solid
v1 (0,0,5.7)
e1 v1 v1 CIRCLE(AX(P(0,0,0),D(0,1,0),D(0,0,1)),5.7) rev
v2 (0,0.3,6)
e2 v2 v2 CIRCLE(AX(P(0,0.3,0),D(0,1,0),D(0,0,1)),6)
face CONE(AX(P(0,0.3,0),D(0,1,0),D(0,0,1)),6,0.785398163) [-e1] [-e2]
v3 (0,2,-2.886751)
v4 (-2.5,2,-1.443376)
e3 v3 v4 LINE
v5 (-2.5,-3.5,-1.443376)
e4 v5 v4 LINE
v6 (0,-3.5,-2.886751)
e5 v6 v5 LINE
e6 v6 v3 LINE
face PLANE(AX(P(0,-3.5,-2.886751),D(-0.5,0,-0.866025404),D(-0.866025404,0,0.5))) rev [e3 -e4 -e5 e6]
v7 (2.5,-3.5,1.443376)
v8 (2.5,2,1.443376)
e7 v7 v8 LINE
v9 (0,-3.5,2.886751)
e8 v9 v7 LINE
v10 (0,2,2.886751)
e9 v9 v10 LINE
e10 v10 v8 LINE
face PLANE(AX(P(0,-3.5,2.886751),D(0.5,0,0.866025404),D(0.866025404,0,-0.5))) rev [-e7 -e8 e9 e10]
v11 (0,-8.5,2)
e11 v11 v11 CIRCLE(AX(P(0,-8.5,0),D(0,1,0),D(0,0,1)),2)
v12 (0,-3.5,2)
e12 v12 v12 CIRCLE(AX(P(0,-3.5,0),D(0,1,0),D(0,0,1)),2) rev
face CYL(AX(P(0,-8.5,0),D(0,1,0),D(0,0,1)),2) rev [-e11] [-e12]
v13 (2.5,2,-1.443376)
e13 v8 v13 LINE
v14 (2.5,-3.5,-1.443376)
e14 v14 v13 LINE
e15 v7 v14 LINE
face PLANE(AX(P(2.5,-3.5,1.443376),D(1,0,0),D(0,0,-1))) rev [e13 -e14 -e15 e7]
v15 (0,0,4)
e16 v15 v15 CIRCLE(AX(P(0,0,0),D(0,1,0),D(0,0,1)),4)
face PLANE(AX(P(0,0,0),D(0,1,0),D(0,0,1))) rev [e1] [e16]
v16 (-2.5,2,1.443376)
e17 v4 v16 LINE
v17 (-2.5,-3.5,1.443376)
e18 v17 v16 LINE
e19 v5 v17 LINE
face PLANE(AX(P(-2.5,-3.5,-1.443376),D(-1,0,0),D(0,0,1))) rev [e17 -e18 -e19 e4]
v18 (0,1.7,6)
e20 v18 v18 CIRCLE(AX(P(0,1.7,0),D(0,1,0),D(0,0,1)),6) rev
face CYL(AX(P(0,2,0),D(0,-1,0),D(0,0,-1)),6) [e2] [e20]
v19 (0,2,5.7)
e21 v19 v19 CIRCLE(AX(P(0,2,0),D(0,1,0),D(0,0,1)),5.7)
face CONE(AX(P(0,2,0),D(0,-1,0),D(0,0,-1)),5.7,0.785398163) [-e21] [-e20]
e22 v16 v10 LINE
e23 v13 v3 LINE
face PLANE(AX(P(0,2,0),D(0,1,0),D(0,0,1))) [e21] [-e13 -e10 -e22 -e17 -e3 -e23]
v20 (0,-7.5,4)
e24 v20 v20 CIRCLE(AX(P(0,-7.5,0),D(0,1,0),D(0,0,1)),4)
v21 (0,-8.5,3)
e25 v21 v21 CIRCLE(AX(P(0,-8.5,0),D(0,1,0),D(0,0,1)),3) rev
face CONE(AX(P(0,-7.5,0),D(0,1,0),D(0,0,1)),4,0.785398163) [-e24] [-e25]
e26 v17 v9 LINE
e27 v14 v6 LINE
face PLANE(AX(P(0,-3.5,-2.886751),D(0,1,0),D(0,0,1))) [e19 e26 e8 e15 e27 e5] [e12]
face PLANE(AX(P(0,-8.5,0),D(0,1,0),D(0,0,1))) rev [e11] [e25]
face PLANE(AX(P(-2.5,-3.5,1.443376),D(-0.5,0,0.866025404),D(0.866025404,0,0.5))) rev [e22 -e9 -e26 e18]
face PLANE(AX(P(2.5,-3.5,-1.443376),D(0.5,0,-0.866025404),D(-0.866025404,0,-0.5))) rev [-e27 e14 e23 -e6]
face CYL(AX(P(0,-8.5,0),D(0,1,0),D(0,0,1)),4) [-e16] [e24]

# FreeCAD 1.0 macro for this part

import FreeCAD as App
import Part
import Sketcher
from FreeCAD import Vector
Q = App.Units.Quantity


def edges_at(feature, points):
    """Names of the edges that pass closest to the given points."""
    edges = feature.Shape.Edges
    near = lambda p: min(range(len(edges)), key=lambda i: edges[i].distToShape(Part.Vertex(*p))[0])
    return sorted({f"Edge{near(p) + 1}" for p in points})

doc = App.newDocument("Part")
body = doc.addObject("PartDesign::Body", "Body")

# Sketch on XZ plane
sketch1 = doc.addObject("Sketcher::SketchObject", "Sketch")
body.addObject(sketch1)
sketch1.AttachmentSupport = (doc.XZ_Plane, [""])
sketch1.MapMode = "FlatFace"
sketch1.addGeometry(Part.Circle(Vector(0, 0, 0), Vector(0, 0, 1), 4), False)
sketch1.addConstraint([
    Sketcher.Constraint("Coincident", 0, 3, -1, 1),
    Sketcher.Constraint("Diameter", 0, 8.0),
])
pad1 = doc.addObject("PartDesign::Pad", "Pad")
body.addObject(pad1)
pad1.Profile = sketch1
pad1.Length = 8.5

# Sketch on XZ plane
sketch2 = doc.addObject("Sketcher::SketchObject", "Sketch001")
body.addObject(sketch2)
sketch2.AttachmentSupport = (doc.XZ_Plane, [""])
sketch2.MapMode = "FlatFace"
sketch2.addGeometry(Part.Circle(Vector(0, 0, 0), Vector(0, 0, 1), 6), False)
sketch2.addConstraint([
    Sketcher.Constraint("Coincident", 0, 3, -1, 1),
    Sketcher.Constraint("Diameter", 0, 12.0),
])
pad2 = doc.addObject("PartDesign::Pad", "Pad001")
body.addObject(pad2)
pad2.Profile = sketch2
pad2.Length = 2
pad2.Reversed = True

# Sketch on XZ plane
sketch3 = doc.addObject("Sketcher::SketchObject", "Sketch002")
body.addObject(sketch3)
sketch3.AttachmentSupport = (doc.XZ_Plane, [""])
sketch3.MapMode = "FlatFace"
sketch3.AttachmentOffset = App.Placement(Vector(0, 0, -2), App.Rotation())
sketch3.addGeometry(Part.Circle(Vector(0, 0, 0), Vector(0, 0, 1), 2), False)
sketch3.addConstraint([
    Sketcher.Constraint("Coincident", 0, 3, -1, 1),
    Sketcher.Constraint("Diameter", 0, 4.0),
])
pocket1 = doc.addObject("PartDesign::Pocket", "Pocket")
body.addObject(pocket1)
pocket1.Profile = sketch3
pocket1.Type = "ThroughAll"
pocket1.Reversed = True

# Sketch on XZ plane
sketch4 = doc.addObject("Sketcher::SketchObject", "Sketch003")
body.addObject(sketch4)
sketch4.AttachmentSupport = (doc.XZ_Plane, [""])
sketch4.MapMode = "FlatFace"
sketch4.AttachmentOffset = App.Placement(Vector(0, 0, -2), App.Rotation())
sketch4.addGeometry([
    Part.LineSegment(Vector(0, -2.886751, 0), Vector(-2.5, -1.443376, 0)),  # 0
    Part.LineSegment(Vector(-2.5, -1.443376, 0), Vector(-2.5, 1.443376, 0)),  # 1
    Part.LineSegment(Vector(-2.5, 1.443376, 0), Vector(0, 2.886751, 0)),  # 2
    Part.LineSegment(Vector(0, 2.886751, 0), Vector(2.5, 1.443376, 0)),  # 3
    Part.LineSegment(Vector(2.5, 1.443376, 0), Vector(2.5, -1.443376, 0)),  # 4
    Part.LineSegment(Vector(2.5, -1.443376, 0), Vector(0, -2.886751, 0)),  # 5
], False)
sketch4.addConstraint([
    Sketcher.Constraint("Coincident", 0, 2, 1, 1),
    Sketcher.Constraint("Coincident", 1, 2, 2, 1),
    Sketcher.Constraint("Coincident", 2, 2, 3, 1),
    Sketcher.Constraint("Coincident", 3, 2, 4, 1),
    Sketcher.Constraint("Coincident", 4, 2, 5, 1),
    Sketcher.Constraint("Coincident", 5, 2, 0, 1),
    Sketcher.Constraint("Vertical", 1),
    Sketcher.Constraint("Vertical", 4),
    Sketcher.Constraint("Symmetric", 0, 2, 3, 2, -1, 1),
    Sketcher.Constraint("Symmetric", 2, 2, 5, 2, -1, 1),
    Sketcher.Constraint("PointOnObject", 2, 2, -2),
    Sketcher.Constraint("Parallel", 2, 5),
    Sketcher.Constraint("Horizontal", 1, 2, 3, 2),
    Sketcher.Constraint("Angle", 0, Q("150 deg")),
    Sketcher.Constraint("DistanceX", 1, 2, 3, 2, 5.0),
    Sketcher.Constraint("DistanceY", 1, 1, 1, 2, 2.886751),
])
pocket2 = doc.addObject("PartDesign::Pocket", "Pocket001")
body.addObject(pocket2)
pocket2.Profile = sketch4
pocket2.Length = 5.5
pocket2.Reversed = True
doc.recompute()

chamfer = doc.addObject("PartDesign::Chamfer", "Chamfer")
body.addObject(chamfer)
chamfer.Base = (pocket2, edges_at(pocket2, [(0, 0, -6), (0, 2, -6)]))
chamfer.Size = 0.3
doc.recompute()

chamfer2 = doc.addObject("PartDesign::Chamfer", "Chamfer001")
body.addObject(chamfer2)
chamfer2.Base = (chamfer, edges_at(chamfer, [(0, -8.5, -4)]))
chamfer2.Size = 1

doc.recompute()
